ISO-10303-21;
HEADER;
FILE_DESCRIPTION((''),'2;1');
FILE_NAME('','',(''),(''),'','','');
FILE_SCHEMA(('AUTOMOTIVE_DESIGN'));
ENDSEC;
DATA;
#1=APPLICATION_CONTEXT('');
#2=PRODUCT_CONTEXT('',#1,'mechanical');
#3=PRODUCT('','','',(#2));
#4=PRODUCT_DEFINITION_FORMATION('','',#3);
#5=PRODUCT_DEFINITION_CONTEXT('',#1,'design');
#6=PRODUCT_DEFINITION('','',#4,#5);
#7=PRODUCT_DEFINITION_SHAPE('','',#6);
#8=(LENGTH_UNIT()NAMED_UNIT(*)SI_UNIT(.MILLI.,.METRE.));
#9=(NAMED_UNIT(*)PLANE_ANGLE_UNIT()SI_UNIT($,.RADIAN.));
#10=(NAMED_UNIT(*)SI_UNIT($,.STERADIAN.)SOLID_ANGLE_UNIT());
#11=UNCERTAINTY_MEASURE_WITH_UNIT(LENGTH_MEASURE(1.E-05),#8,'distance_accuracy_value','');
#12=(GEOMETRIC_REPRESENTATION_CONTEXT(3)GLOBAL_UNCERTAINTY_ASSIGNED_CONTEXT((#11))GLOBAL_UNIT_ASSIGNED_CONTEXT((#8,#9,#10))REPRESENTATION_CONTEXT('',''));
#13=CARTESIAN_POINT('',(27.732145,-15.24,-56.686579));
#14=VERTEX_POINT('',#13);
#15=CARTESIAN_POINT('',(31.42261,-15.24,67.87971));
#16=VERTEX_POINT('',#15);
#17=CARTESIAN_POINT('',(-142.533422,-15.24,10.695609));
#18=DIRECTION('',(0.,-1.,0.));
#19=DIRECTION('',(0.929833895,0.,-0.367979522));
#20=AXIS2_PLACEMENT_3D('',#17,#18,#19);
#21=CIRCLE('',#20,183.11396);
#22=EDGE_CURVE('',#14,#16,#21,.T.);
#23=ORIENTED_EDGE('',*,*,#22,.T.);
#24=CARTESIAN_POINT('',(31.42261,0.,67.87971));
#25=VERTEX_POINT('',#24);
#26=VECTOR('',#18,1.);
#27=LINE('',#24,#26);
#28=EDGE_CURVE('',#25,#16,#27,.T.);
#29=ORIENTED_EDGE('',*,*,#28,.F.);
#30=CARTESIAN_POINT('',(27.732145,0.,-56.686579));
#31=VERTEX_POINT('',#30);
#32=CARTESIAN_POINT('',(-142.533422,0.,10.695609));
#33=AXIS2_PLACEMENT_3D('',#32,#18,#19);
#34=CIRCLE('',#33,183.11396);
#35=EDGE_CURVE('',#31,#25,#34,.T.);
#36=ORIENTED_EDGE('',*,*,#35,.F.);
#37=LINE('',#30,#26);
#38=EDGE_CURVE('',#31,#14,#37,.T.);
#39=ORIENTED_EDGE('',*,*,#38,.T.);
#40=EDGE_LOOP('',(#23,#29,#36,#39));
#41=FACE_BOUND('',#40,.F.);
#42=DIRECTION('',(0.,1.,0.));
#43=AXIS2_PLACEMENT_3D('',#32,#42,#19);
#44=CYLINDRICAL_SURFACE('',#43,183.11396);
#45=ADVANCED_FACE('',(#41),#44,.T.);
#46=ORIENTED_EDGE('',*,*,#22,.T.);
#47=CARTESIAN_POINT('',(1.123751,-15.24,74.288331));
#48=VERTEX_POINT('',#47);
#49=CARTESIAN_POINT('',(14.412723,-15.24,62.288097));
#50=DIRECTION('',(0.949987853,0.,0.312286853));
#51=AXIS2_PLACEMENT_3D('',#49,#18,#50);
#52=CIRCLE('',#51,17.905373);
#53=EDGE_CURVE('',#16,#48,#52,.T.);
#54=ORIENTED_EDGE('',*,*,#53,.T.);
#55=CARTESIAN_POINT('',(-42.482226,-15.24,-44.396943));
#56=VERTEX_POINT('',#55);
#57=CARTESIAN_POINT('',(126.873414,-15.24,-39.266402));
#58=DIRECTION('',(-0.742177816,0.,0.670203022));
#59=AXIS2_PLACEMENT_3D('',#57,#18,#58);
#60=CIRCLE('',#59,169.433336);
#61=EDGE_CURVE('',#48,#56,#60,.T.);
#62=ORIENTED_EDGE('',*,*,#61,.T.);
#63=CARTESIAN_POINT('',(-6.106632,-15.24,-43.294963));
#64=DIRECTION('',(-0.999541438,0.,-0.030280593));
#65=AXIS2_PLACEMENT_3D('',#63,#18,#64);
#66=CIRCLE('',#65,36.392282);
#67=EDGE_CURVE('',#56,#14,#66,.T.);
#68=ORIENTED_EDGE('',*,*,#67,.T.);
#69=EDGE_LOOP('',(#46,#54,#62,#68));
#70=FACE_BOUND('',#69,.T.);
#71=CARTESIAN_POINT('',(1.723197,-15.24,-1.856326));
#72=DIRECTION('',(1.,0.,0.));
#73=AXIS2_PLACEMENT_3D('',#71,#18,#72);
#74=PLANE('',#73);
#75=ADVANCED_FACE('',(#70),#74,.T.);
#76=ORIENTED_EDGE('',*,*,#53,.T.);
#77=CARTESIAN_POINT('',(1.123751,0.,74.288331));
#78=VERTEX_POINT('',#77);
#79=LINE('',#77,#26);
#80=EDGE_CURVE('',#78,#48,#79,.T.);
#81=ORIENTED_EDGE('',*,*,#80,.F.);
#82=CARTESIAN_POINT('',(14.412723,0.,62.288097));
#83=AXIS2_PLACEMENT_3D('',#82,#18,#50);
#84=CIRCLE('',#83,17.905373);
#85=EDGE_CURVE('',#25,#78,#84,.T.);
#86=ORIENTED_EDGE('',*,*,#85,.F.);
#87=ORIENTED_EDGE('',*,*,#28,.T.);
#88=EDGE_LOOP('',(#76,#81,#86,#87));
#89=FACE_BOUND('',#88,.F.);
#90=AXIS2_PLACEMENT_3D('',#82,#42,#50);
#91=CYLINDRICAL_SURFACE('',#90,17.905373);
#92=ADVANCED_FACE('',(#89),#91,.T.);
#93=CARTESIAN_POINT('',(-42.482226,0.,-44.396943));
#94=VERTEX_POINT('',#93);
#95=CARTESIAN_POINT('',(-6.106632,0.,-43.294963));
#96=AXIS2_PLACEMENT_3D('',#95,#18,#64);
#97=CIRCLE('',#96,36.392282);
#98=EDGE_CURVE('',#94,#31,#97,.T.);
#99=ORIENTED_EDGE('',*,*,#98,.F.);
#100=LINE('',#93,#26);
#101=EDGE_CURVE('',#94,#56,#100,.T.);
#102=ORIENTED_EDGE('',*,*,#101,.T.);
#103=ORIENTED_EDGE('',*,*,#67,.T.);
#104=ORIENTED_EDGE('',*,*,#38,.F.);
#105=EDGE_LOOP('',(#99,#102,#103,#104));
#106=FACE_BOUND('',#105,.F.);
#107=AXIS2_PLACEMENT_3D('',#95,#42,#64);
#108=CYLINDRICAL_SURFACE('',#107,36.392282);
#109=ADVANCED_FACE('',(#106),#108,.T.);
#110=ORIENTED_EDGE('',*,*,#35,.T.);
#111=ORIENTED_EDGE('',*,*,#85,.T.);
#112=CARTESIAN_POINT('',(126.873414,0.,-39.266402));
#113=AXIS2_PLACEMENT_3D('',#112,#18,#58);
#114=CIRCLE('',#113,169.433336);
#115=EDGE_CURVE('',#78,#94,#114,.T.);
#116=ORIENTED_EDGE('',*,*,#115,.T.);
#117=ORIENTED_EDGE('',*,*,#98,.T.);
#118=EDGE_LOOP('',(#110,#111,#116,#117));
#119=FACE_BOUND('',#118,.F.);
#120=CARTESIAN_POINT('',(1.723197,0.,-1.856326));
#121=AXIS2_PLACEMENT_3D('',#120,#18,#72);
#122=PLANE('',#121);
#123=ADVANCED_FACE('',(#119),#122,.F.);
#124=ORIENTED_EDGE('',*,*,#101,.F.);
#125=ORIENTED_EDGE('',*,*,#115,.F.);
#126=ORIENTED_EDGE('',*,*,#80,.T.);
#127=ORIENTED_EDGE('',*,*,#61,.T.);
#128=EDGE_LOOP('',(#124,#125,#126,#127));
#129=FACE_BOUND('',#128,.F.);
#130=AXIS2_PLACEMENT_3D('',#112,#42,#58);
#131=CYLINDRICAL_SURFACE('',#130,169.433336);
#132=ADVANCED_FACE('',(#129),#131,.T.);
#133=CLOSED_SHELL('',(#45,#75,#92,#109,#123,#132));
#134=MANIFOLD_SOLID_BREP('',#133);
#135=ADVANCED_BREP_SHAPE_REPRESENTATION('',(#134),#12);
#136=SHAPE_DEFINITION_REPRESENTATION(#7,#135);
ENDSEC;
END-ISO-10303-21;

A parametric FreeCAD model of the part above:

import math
import FreeCAD as App
import Part
import Sketcher

V = App.Vector
Q = App.Units.Quantity

doc = App.newDocument("Part")
body = doc.addObject("PartDesign::Body", "Body")

# Sketch on XZ plane
sketch1 = doc.addObject("Sketcher::SketchObject", "Sketch")
body.addObject(sketch1)
sketch1.AttachmentSupport = (doc.XZ_Plane, [""])
sketch1.MapMode = "FlatFace"
sketch1.addGeometry(Part.ArcOfCircle(Part.Circle(V(-143, 11, 0), V(0, 0, 1), 183), math.radians(-22), math.radians(18)), False)
sketch1.addGeometry(Part.ArcOfCircle(Part.Circle(V(14, 62, 0), V(0, 0, 1), 18), math.radians(18), math.radians(138)), False)
sketch1.addGeometry(Part.ArcOfCircle(Part.Circle(V(127, -39, 0), V(0, 0, 1), 169), math.radians(138), math.radians(182)), False)
sketch1.addGeometry(Part.ArcOfCircle(Part.Circle(V(-6, -43, 0), V(0, 0, 1), 36), math.radians(-178), math.radians(-22)), False)
sketch1.addConstraint(Sketcher.Constraint("Tangent", 0, 2, 1, 1))
sketch1.addConstraint(Sketcher.Constraint("Tangent", 1, 2, 2, 1))
sketch1.addConstraint(Sketcher.Constraint("Tangent", 2, 2, 3, 1))
sketch1.addConstraint(Sketcher.Constraint("Tangent", 3, 2, 0, 1))
sketch1.addConstraint(Sketcher.Constraint("Radius", 0, Q("183.11396 mm")))
sketch1.addConstraint(Sketcher.Constraint("Radius", 1, Q("17.905373 mm")))
sketch1.addConstraint(Sketcher.Constraint("Radius", 2, Q("169.433336 mm")))
sketch1.addConstraint(Sketcher.Constraint("Radius", 3, Q("36.392282 mm")))
sketch1.addConstraint(Sketcher.Constraint("DistanceY", 2, 3, 1, 3, Q("101.5545 mm")))
sketch1.addConstraint(Sketcher.Constraint("DistanceY", 0, 3, 0, 2, Q("57.184101 mm")))
sketch1.addConstraint(Sketcher.Constraint("DistanceY", -1, 1, 0, 3, Q("10.695609 mm")))
sketch1.addConstraint(Sketcher.Constraint("DistanceX", 3, 3, -1, 1, Q("6.106632 mm")))
pad1 = doc.addObject("PartDesign::Pad", "Pad")
body.addObject(pad1)
pad1.Profile = sketch1
pad1.Length = Q("0.6 in")

doc.recompute()
